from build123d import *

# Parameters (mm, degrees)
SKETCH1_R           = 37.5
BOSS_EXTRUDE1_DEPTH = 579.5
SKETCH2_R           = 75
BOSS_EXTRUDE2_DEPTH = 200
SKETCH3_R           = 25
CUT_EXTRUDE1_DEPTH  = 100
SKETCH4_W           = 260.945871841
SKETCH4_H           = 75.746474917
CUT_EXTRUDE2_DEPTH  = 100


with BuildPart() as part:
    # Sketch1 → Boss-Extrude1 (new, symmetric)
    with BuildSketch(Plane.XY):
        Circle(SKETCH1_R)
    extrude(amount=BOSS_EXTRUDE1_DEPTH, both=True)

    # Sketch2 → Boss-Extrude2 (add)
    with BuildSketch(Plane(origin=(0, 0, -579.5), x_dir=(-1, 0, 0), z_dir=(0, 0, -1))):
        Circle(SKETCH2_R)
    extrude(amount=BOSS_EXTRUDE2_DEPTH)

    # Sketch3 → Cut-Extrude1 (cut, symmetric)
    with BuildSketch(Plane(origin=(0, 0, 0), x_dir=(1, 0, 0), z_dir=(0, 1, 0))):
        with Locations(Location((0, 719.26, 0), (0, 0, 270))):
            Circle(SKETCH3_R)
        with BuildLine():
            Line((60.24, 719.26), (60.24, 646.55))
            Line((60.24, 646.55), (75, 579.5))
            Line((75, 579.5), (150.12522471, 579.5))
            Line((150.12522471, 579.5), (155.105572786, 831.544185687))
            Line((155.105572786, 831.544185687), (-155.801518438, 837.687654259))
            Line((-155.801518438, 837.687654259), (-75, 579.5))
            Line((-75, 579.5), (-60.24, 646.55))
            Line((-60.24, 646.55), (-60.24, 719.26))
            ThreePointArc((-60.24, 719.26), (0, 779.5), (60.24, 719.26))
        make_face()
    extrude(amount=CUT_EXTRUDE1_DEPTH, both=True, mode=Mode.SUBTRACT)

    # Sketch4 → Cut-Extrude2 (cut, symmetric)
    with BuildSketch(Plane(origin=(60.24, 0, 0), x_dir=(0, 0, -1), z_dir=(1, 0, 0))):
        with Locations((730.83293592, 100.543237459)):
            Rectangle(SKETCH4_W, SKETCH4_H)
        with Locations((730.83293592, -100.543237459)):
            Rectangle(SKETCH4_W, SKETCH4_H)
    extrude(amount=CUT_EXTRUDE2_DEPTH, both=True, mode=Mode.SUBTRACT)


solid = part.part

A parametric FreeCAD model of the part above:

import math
import FreeCAD as App
import Part
import Sketcher

V = App.Vector


def add_polygon(sketch, points):
    """Adds a closed chain of lines whose ends are joined by coincident constraints."""
    first, n = sketch.GeometryCount, len(points)
    for a, b in zip(points, points[1:] + points[:1]):
        sketch.addGeometry(Part.LineSegment(App.Vector(*a, 0), App.Vector(*b, 0)), False)
    for i in range(n):
        sketch.addConstraint(Sketcher.Constraint("Coincident", first + i, 2, first + (i + 1) % n, 1))

doc = App.newDocument("Part")
body = doc.addObject("PartDesign::Body", "Body")

sketch1 = body.newObject("Sketcher::SketchObject", "Sketch")
sketch1.AttachmentSupport = (doc.getObject("XY_Plane"), [""])
sketch1.MapMode = "FlatFace"
sketch1.addGeometry(Part.Circle(V(0, 0, 0), V(0, 0, 1), 37.5), False)
sketch1.addConstraint([
    Sketcher.Constraint("Coincident", 0, 3, -1, 1),
    Sketcher.Constraint("Diameter", 0, 75.0),
])
pad1 = body.newObject("PartDesign::Pad", "Pad")
pad1.Profile = sketch1
pad1.Length = 1159
pad1.Midplane = True

sketch2 = body.newObject("Sketcher::SketchObject", "Sketch001")
sketch2.AttachmentSupport = (doc.getObject("XY_Plane"), [""])
sketch2.MapMode = "FlatFace"
sketch2.AttachmentOffset = App.Placement(V(0, 0, -579.5), App.Rotation())
sketch2.addGeometry(Part.Circle(V(0, 0, 0), V(0, 0, 1), 75), False)
sketch2.addConstraint([
    Sketcher.Constraint("Coincident", 0, 3, -1, 1),
    Sketcher.Constraint("Diameter", 0, 150.0),
])
pad2 = body.newObject("PartDesign::Pad", "Pad001")
pad2.Profile = sketch2
pad2.Length = 200
pad2.Reversed = True

sketch3 = body.newObject("Sketcher::SketchObject", "Sketch002")
sketch3.AttachmentSupport = (doc.getObject("XZ_Plane"), [""])
sketch3.MapMode = "FlatFace"
sketch3.addGeometry([
    Part.Circle(V(0, -719.26, 0), V(0, 0, 1), 25),
    Part.LineSegment(V(60.24, -719.26, 0), V(60.24, -646.55, 0)),
    Part.LineSegment(V(60.24, -646.55, 0), V(75, -579.5, 0)),
    Part.LineSegment(V(75, -579.5, 0), V(150.125225, -579.5, 0)),
    Part.LineSegment(V(150.125225, -579.5, 0), V(155.105573, -831.544186, 0)),
    Part.LineSegment(V(155.105573, -831.544186, 0), V(-155.801518, -837.687654, 0)),
    Part.LineSegment(V(-155.801518, -837.687654, 0), V(-75, -579.5, 0)),
    Part.LineSegment(V(-75, -579.5, 0), V(-60.24, -646.55, 0)),
    Part.LineSegment(V(-60.24, -646.55, 0), V(-60.24, -719.26, 0)),
    Part.ArcOfCircle(Part.Circle(V(0, -719.26, 0), V(0, 0, 1), 60.24), math.radians(180), math.radians(360)),
], False)
sketch3.addConstraint([
    Sketcher.Constraint("Coincident", 1, 2, 2, 1),
    Sketcher.Constraint("Coincident", 2, 2, 3, 1),
    Sketcher.Constraint("Coincident", 3, 2, 4, 1),
    Sketcher.Constraint("Coincident", 4, 2, 5, 1),
    Sketcher.Constraint("Coincident", 5, 2, 6, 1),
    Sketcher.Constraint("Coincident", 6, 2, 7, 1),
    Sketcher.Constraint("Coincident", 7, 2, 8, 1),
    Sketcher.Constraint("Tangent", 8, 2, 9, 1),
    Sketcher.Constraint("Tangent", 9, 2, 1, 1),
    Sketcher.Constraint("Vertical", 1),
    Sketcher.Constraint("Horizontal", 3),
    Sketcher.Constraint("Vertical", 8),
    Sketcher.Constraint("Coincident", 9, 3, 0, 3),
    Sketcher.Constraint("Symmetric", 2, 2, 6, 2, -2),
    Sketcher.Constraint("Symmetric", 1, 2, 7, 2, -2),
    Sketcher.Constraint("Perpendicular", 4, 5),
    Sketcher.Constraint("Diameter", 0, 50.0),
    Sketcher.Constraint("Radius", 9, 60.24),
    Sketcher.Constraint("DistanceX", -1, 1, 2, 2, 75.0),
    Sketcher.Constraint("DistanceY", 1, 1, 1, 2, 72.71),
    Sketcher.Constraint("DistanceY", 2, 2, -1, 1, 579.5),
    Sketcher.Constraint("DistanceY", 0, 3, -1, 1, 719.26),
    Sketcher.Constraint("DistanceX", 3, 1, 3, 2, 75.125225),
    Sketcher.Constraint("DistanceX", 5, 2, -1, 1, 155.801518),
    Sketcher.Constraint("DistanceX", 3, 2, 4, 2, 4.980348),
    Sketcher.Constraint("DistanceY", 5, 2, 4, 2, 6.143469),
])
pocket1 = body.newObject("PartDesign::Pocket", "Pocket")
pocket1.Profile = sketch3
pocket1.Length = 200
pocket1.Midplane = True

sketch4 = body.newObject("Sketcher::SketchObject", "Sketch003")
sketch4.AttachmentSupport = (doc.getObject("YZ_Plane"), [""])
sketch4.MapMode = "FlatFace"
sketch4.AttachmentOffset = App.Placement(V(0, 0, 60.24), App.Rotation())
add_polygon(sketch4, [(138.416475, -600.36), (62.67, -600.36), (62.67, -861.305872), (138.416475, -861.305872)])
add_polygon(sketch4, [(-62.67, -600.36), (-138.416475, -600.36), (-138.416475, -861.305872), (-62.67, -861.305872)])
sketch4.addConstraint([
    Sketcher.Constraint("Horizontal", 0),
    Sketcher.Constraint("Vertical", 1),
    Sketcher.Constraint("Horizontal", 2),
    Sketcher.Constraint("Vertical", 3),
    Sketcher.Constraint("Horizontal", 4),
    Sketcher.Constraint("Vertical", 5),
    Sketcher.Constraint("Horizontal", 6),
    Sketcher.Constraint("Vertical", 7),
    Sketcher.Constraint("Symmetric", 3, 2, 4, 2, -2),
    Sketcher.Constraint("Symmetric", 1, 2, 6, 2, -2),
    Sketcher.Constraint("DistanceX", -1, 1, 0, 2, 62.67),
    Sketcher.Constraint("DistanceY", 0, 2, -1, 1, 600.36),
    Sketcher.Constraint("DistanceY", 1, 2, 1, 1, 260.945872),
    Sketcher.Constraint("DistanceX", 0, 2, 0, 1, 75.746475),
])
pocket2 = body.newObject("PartDesign::Pocket", "Pocket001")
pocket2.Profile = sketch4
pocket2.Length = 200
pocket2.Midplane = True

doc.recompute()
